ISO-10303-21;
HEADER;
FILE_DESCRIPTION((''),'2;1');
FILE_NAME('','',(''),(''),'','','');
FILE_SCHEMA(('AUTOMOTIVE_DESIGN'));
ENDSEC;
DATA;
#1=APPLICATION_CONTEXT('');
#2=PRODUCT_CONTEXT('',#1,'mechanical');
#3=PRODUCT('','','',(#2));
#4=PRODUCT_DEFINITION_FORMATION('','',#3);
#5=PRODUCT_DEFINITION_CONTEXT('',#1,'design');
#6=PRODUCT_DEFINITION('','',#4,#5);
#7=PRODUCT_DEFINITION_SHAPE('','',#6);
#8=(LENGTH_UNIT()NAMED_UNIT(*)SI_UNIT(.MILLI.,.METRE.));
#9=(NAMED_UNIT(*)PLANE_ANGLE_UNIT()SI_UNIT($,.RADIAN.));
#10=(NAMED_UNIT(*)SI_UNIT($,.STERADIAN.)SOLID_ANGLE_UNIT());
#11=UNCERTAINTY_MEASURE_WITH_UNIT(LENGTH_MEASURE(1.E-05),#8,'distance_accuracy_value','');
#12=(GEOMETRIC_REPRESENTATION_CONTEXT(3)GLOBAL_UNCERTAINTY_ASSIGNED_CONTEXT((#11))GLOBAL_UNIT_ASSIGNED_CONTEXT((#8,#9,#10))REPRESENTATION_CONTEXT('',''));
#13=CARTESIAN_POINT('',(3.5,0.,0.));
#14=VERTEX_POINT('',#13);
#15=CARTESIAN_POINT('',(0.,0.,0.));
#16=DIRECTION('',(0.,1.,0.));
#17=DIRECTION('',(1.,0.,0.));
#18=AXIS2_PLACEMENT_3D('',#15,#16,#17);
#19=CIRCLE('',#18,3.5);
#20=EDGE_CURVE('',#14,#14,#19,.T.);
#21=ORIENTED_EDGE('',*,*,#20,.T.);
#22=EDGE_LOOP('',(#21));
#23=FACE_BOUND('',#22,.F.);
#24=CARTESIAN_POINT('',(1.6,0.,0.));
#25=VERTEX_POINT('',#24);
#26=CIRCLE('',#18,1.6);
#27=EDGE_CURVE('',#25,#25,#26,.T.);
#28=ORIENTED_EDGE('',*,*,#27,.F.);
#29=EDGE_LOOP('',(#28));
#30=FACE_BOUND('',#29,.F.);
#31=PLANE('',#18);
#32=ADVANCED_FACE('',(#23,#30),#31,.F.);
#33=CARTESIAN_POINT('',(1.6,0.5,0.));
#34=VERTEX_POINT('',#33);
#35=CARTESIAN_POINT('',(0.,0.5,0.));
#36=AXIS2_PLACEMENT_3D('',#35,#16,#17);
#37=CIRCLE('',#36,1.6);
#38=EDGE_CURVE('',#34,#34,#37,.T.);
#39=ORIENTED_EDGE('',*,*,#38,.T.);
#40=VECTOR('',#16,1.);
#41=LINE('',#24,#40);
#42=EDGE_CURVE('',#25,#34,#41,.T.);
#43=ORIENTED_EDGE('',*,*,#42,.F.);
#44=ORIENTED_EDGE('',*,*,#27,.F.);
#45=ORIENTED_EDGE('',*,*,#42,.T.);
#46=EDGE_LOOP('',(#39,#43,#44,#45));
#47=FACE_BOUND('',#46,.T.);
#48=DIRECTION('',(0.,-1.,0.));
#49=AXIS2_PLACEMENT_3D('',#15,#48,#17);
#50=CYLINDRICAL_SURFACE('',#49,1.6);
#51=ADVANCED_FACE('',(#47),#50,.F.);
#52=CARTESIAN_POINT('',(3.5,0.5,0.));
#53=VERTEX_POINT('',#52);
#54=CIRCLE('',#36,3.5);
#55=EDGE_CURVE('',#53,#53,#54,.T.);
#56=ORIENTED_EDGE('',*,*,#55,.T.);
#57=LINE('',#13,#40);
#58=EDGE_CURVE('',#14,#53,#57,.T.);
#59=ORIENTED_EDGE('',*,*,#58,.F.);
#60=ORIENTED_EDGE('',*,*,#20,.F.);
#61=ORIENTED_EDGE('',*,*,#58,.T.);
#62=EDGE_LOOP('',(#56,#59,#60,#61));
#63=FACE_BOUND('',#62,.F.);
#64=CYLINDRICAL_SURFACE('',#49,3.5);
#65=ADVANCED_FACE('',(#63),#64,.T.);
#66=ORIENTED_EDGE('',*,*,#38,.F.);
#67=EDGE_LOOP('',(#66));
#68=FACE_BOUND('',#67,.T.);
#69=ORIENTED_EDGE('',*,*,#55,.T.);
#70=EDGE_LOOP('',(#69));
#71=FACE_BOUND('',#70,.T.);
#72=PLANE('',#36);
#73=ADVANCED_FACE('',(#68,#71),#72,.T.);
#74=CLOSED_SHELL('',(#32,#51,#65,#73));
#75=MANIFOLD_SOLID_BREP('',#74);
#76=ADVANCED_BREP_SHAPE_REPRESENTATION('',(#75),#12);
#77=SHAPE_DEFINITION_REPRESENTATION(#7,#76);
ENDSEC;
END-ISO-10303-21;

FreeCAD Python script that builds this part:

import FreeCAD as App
import Part
import Sketcher
from FreeCAD import Vector
Q = App.Units.Quantity

doc = App.newDocument("Part")
body = doc.addObject("PartDesign::Body", "Body")

# Sketch on XZ plane
sketch1 = body.newObject("Sketcher::SketchObject", "Sketch")
sketch1.AttachmentSupport = (doc.getObject("XZ_Plane"), [""])
sketch1.MapMode = "FlatFace"
sketch1.addGeometry(Part.Circle(Vector(0, 0, 0), Vector(0, 0, 1), 3.5), False)
sketch1.addGeometry(Part.Circle(Vector(0, 0, 0), Vector(0, 0, 1), 1.6), False)
sketch1.addConstraint(Sketcher.Constraint("Coincident", 0, 3, -1, 1))
sketch1.addConstraint(Sketcher.Constraint("Coincident", 1, 3, -1, 1))
sketch1.addConstraint(Sketcher.Constraint("Diameter", 0, Q("7 mm")))
sketch1.addConstraint(Sketcher.Constraint("Diameter", 1, Q("3.2 mm")))
pad1 = body.newObject("PartDesign::Pad", "Pad")
pad1.Profile = sketch1
pad1.Length = 0.5
pad1.Reversed = True

doc.recompute()
